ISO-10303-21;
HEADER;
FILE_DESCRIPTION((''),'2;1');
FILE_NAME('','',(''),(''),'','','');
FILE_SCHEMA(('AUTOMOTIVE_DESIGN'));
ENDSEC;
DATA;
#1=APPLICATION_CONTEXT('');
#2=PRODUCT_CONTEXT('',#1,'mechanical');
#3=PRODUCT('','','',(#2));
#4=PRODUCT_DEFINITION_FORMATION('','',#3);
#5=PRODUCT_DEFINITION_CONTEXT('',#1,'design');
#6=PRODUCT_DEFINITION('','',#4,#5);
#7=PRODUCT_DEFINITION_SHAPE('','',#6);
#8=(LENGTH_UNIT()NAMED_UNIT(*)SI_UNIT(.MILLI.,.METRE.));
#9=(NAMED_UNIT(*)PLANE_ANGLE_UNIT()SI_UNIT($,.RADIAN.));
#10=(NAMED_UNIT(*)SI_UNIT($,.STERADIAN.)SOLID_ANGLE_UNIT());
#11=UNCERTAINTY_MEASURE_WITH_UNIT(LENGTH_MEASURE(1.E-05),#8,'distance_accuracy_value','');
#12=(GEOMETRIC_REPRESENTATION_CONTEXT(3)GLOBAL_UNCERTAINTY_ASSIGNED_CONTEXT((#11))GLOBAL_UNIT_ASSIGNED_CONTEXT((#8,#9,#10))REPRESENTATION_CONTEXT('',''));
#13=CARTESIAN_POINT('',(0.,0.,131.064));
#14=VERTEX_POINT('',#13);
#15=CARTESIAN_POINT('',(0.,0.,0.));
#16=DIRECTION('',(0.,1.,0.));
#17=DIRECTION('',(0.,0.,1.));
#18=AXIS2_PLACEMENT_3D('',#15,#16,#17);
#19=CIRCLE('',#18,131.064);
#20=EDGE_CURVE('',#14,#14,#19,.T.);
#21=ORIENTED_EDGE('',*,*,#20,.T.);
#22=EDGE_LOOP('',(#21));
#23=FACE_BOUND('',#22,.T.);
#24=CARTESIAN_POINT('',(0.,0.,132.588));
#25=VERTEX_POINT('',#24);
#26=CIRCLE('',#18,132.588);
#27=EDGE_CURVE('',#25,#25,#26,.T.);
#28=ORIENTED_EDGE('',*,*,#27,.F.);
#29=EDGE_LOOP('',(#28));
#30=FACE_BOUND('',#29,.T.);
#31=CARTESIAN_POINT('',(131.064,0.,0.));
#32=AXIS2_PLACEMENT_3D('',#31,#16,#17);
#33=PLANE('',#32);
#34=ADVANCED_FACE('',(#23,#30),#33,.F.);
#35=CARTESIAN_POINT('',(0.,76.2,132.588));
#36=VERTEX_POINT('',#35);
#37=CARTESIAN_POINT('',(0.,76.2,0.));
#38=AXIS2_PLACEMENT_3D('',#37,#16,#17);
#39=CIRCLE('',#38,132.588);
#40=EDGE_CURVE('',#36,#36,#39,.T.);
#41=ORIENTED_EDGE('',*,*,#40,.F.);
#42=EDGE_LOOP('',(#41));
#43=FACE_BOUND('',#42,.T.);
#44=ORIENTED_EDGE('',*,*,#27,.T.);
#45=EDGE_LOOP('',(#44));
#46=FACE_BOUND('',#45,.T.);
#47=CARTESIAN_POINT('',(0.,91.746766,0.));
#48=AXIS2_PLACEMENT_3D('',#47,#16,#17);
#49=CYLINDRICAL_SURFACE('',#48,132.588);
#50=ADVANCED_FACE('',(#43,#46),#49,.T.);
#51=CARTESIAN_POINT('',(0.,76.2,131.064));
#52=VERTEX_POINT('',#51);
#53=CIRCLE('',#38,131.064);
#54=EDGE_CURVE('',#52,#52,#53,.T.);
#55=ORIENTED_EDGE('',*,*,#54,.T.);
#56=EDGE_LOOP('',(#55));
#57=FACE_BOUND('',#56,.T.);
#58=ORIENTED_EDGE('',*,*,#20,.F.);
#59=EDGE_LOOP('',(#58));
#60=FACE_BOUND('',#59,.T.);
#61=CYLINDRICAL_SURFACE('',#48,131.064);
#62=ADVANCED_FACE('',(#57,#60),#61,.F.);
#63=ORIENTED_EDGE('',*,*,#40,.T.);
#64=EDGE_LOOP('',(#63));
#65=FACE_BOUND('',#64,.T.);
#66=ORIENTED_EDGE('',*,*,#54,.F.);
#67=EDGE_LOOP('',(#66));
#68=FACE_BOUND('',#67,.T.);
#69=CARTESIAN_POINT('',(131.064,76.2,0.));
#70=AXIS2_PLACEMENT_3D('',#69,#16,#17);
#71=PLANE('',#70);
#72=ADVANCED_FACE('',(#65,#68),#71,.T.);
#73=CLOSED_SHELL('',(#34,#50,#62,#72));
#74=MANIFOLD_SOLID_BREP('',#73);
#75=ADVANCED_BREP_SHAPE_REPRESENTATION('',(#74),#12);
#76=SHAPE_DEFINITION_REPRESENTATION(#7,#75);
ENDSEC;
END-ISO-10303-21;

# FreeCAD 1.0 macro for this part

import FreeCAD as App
import Part
import Sketcher
Q = App.Units.Quantity


def add_polygon(sketch, points):
    """Adds a closed chain of lines whose ends are joined by coincident constraints."""
    first, n = sketch.GeometryCount, len(points)
    for a, b in zip(points, points[1:] + points[:1]):
        sketch.addGeometry(Part.LineSegment(App.Vector(*a, 0), App.Vector(*b, 0)), False)
    for i in range(n):
        sketch.addConstraint(Sketcher.Constraint("Coincident", first + i, 2, first + (i + 1) % n, 1))

doc = App.newDocument("Part")
body = doc.addObject("PartDesign::Body", "Body")

# Sketch on XY plane
sketch1 = body.newObject("Sketcher::SketchObject", "Sketch")
sketch1.AttachmentSupport = (doc.getObject("XY_Plane"), [""])
sketch1.MapMode = "FlatFace"
add_polygon(sketch1, [(131.064, 76.2), (131.064, 0), (132.588, 0), (132.588, 76.2)])  # lines 0-3
sketch1.addConstraint([
    Sketcher.Constraint("Vertical", 0),
    Sketcher.Constraint("Horizontal", 1),
    Sketcher.Constraint("Vertical", 2),
    Sketcher.Constraint("Horizontal", 3),
    Sketcher.Constraint("PointOnObject", 0, 2, -1),
    Sketcher.Constraint("DistanceY", 0, 2, 0, 1, Q("3 in")),
    Sketcher.Constraint("DistanceX", 1, 1, 1, 2, Q("0.06 in")),
    Sketcher.Constraint("DistanceX", -1, 1, 0, 2, Q("5.16 in")),
])
revolution = body.newObject("PartDesign::Revolution", "Revolution")
revolution.Profile = sketch1
revolution.ReferenceAxis = (sketch1, ["V_Axis"])
revolution.Angle = 360

doc.recompute()
